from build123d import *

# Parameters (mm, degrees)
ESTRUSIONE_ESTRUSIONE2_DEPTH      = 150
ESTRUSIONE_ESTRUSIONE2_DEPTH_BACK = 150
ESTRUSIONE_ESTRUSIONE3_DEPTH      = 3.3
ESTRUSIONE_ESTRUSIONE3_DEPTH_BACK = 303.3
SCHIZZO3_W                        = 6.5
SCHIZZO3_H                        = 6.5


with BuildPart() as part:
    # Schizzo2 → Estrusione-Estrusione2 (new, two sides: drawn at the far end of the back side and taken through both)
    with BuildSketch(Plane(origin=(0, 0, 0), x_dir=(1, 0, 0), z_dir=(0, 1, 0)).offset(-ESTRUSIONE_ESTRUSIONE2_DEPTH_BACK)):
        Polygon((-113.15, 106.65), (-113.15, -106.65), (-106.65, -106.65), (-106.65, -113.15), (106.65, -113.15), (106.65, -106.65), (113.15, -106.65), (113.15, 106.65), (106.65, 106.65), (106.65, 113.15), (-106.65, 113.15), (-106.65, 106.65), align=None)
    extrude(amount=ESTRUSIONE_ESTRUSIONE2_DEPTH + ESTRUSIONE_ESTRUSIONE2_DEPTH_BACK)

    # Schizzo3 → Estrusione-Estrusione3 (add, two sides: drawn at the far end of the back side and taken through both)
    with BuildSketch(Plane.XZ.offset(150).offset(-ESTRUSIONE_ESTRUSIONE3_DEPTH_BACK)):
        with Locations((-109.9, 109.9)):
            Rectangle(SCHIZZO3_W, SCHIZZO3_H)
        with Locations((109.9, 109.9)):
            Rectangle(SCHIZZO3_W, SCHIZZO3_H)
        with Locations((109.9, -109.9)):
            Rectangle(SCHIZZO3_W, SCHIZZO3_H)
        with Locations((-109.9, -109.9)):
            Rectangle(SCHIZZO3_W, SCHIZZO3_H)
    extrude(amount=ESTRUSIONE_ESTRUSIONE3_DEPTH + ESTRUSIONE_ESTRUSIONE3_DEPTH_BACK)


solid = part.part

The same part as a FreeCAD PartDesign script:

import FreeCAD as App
import Part
import Sketcher

V = App.Vector


def add_polygon(sketch, points):
    """Adds a closed chain of lines whose ends are joined by coincident constraints."""
    first, n = sketch.GeometryCount, len(points)
    for a, b in zip(points, points[1:] + points[:1]):
        sketch.addGeometry(Part.LineSegment(App.Vector(*a, 0), App.Vector(*b, 0)), False)
    for i in range(n):
        sketch.addConstraint(Sketcher.Constraint("Coincident", first + i, 2, first + (i + 1) % n, 1))

doc = App.newDocument("Part")
body = doc.addObject("PartDesign::Body", "Body")

# Sketch on XZ plane
sketch1 = body.newObject("Sketcher::SketchObject", "Sketch")
sketch1.AttachmentSupport = (doc.getObject("XZ_Plane"), [""])
sketch1.MapMode = "FlatFace"
add_polygon(sketch1, [(-113, -107), (-113, 107), (-107, 107), (-107, 113), (107, 113), (107, 107), (113, 107), (113, -107), (107, -107), (107, -113), (-107, -113), (-107, -107)])  # lines 0-11
sketch1.addConstraint(Sketcher.Constraint("Vertical", 0))
sketch1.addConstraint(Sketcher.Constraint("Horizontal", 1))
sketch1.addConstraint(Sketcher.Constraint("Vertical", 2))
sketch1.addConstraint(Sketcher.Constraint("Horizontal", 3))
sketch1.addConstraint(Sketcher.Constraint("Vertical", 4))
sketch1.addConstraint(Sketcher.Constraint("Horizontal", 5))
sketch1.addConstraint(Sketcher.Constraint("Vertical", 6))
sketch1.addConstraint(Sketcher.Constraint("Horizontal", 7))
sketch1.addConstraint(Sketcher.Constraint("Vertical", 8))
sketch1.addConstraint(Sketcher.Constraint("Horizontal", 9))
sketch1.addConstraint(Sketcher.Constraint("Vertical", 10))
sketch1.addConstraint(Sketcher.Constraint("Horizontal", 11))
sketch1.addConstraint(Sketcher.Constraint("Symmetric", 0, 2, 6, 2, -1, 1))
sketch1.addConstraint(Sketcher.Constraint("Symmetric", 2, 2, 8, 2, -1, 1))
sketch1.addConstraint(Sketcher.Constraint("Symmetric", 4, 2, 10, 2, -1, 1))
sketch1.addConstraint(Sketcher.Constraint("Symmetric", 1, 2, 4, 2, -2))
sketch1.addConstraint(Sketcher.Constraint("Equal", 9, 0))
sketch1.addConstraint(Sketcher.Constraint("Equal", 11, 2))
sketch1.addConstraint(Sketcher.Constraint("DistanceX", 1, 1, 1, 2, 6.5))
sketch1.addConstraint(Sketcher.Constraint("DistanceX", 3, 1, 3, 2, 213.3))
pad1 = body.newObject("PartDesign::Pad", "Pad")
pad1.Profile = sketch1
pad1.Type = "TwoLengths"
pad1.Length = 150
pad1.Length2 = 150
pad1.Reversed = True

# Sketch on XZ plane
sketch2 = body.newObject("Sketcher::SketchObject", "Sketch001")
sketch2.AttachmentSupport = (doc.getObject("XZ_Plane"), [""])
sketch2.MapMode = "FlatFace"
sketch2.AttachmentOffset = App.Placement(V(0, 0, 150), App.Rotation())
add_polygon(sketch2, [(-113, 113), (-113, 107), (-107, 107), (-107, 113)])  # lines 0-3
add_polygon(sketch2, [(107, 113), (107, 107), (113, 107), (113, 113)])  # lines 4-7
add_polygon(sketch2, [(107, -107), (107, -113), (113, -113), (113, -107)])  # lines 8-11
add_polygon(sketch2, [(-113, -107), (-113, -113), (-107, -113), (-107, -107)])  # lines 12-15
sketch2.addConstraint(Sketcher.Constraint("Vertical", 0))
sketch2.addConstraint(Sketcher.Constraint("Horizontal", 1))
sketch2.addConstraint(Sketcher.Constraint("Vertical", 2))
sketch2.addConstraint(Sketcher.Constraint("Horizontal", 3))
sketch2.addConstraint(Sketcher.Constraint("Vertical", 4))
sketch2.addConstraint(Sketcher.Constraint("Horizontal", 5))
sketch2.addConstraint(Sketcher.Constraint("Vertical", 6))
sketch2.addConstraint(Sketcher.Constraint("Horizontal", 7))
sketch2.addConstraint(Sketcher.Constraint("Vertical", 8))
sketch2.addConstraint(Sketcher.Constraint("Horizontal", 9))
sketch2.addConstraint(Sketcher.Constraint("Vertical", 10))
sketch2.addConstraint(Sketcher.Constraint("Horizontal", 11))
sketch2.addConstraint(Sketcher.Constraint("Vertical", 12))
sketch2.addConstraint(Sketcher.Constraint("Horizontal", 13))
sketch2.addConstraint(Sketcher.Constraint("Vertical", 14))
sketch2.addConstraint(Sketcher.Constraint("Horizontal", 15))
sketch2.addConstraint(Sketcher.Constraint("Symmetric", 2, 2, 8, 2, -1, 1))
sketch2.addConstraint(Sketcher.Constraint("Symmetric", 0, 2, 10, 2, -1, 1))
sketch2.addConstraint(Sketcher.Constraint("Symmetric", 6, 2, 12, 2, -1, 1))
sketch2.addConstraint(Sketcher.Constraint("Symmetric", 4, 2, 14, 2, -1, 1))
sketch2.addConstraint(Sketcher.Constraint("Symmetric", 1, 2, 4, 2, -2))
sketch2.addConstraint(Sketcher.Constraint("Symmetric", 3, 2, 6, 2, -2))
sketch2.addConstraint(Sketcher.Constraint("Equal", 15, 0))
sketch2.addConstraint(Sketcher.Constraint("DistanceX", 1, 1, 1, 2, 6.5))
sketch2.addConstraint(Sketcher.Constraint("DistanceX", 1, 2, 4, 2, 213.3))
sketch2.addConstraint(Sketcher.Constraint("DistanceY", 8, 2, 4, 2, 219.8))
pad2 = body.newObject("PartDesign::Pad", "Pad001")
pad2.Profile = sketch2
pad2.Type = "TwoLengths"
pad2.Length = 3.3
pad2.Length2 = 303.3

doc.recompute()
